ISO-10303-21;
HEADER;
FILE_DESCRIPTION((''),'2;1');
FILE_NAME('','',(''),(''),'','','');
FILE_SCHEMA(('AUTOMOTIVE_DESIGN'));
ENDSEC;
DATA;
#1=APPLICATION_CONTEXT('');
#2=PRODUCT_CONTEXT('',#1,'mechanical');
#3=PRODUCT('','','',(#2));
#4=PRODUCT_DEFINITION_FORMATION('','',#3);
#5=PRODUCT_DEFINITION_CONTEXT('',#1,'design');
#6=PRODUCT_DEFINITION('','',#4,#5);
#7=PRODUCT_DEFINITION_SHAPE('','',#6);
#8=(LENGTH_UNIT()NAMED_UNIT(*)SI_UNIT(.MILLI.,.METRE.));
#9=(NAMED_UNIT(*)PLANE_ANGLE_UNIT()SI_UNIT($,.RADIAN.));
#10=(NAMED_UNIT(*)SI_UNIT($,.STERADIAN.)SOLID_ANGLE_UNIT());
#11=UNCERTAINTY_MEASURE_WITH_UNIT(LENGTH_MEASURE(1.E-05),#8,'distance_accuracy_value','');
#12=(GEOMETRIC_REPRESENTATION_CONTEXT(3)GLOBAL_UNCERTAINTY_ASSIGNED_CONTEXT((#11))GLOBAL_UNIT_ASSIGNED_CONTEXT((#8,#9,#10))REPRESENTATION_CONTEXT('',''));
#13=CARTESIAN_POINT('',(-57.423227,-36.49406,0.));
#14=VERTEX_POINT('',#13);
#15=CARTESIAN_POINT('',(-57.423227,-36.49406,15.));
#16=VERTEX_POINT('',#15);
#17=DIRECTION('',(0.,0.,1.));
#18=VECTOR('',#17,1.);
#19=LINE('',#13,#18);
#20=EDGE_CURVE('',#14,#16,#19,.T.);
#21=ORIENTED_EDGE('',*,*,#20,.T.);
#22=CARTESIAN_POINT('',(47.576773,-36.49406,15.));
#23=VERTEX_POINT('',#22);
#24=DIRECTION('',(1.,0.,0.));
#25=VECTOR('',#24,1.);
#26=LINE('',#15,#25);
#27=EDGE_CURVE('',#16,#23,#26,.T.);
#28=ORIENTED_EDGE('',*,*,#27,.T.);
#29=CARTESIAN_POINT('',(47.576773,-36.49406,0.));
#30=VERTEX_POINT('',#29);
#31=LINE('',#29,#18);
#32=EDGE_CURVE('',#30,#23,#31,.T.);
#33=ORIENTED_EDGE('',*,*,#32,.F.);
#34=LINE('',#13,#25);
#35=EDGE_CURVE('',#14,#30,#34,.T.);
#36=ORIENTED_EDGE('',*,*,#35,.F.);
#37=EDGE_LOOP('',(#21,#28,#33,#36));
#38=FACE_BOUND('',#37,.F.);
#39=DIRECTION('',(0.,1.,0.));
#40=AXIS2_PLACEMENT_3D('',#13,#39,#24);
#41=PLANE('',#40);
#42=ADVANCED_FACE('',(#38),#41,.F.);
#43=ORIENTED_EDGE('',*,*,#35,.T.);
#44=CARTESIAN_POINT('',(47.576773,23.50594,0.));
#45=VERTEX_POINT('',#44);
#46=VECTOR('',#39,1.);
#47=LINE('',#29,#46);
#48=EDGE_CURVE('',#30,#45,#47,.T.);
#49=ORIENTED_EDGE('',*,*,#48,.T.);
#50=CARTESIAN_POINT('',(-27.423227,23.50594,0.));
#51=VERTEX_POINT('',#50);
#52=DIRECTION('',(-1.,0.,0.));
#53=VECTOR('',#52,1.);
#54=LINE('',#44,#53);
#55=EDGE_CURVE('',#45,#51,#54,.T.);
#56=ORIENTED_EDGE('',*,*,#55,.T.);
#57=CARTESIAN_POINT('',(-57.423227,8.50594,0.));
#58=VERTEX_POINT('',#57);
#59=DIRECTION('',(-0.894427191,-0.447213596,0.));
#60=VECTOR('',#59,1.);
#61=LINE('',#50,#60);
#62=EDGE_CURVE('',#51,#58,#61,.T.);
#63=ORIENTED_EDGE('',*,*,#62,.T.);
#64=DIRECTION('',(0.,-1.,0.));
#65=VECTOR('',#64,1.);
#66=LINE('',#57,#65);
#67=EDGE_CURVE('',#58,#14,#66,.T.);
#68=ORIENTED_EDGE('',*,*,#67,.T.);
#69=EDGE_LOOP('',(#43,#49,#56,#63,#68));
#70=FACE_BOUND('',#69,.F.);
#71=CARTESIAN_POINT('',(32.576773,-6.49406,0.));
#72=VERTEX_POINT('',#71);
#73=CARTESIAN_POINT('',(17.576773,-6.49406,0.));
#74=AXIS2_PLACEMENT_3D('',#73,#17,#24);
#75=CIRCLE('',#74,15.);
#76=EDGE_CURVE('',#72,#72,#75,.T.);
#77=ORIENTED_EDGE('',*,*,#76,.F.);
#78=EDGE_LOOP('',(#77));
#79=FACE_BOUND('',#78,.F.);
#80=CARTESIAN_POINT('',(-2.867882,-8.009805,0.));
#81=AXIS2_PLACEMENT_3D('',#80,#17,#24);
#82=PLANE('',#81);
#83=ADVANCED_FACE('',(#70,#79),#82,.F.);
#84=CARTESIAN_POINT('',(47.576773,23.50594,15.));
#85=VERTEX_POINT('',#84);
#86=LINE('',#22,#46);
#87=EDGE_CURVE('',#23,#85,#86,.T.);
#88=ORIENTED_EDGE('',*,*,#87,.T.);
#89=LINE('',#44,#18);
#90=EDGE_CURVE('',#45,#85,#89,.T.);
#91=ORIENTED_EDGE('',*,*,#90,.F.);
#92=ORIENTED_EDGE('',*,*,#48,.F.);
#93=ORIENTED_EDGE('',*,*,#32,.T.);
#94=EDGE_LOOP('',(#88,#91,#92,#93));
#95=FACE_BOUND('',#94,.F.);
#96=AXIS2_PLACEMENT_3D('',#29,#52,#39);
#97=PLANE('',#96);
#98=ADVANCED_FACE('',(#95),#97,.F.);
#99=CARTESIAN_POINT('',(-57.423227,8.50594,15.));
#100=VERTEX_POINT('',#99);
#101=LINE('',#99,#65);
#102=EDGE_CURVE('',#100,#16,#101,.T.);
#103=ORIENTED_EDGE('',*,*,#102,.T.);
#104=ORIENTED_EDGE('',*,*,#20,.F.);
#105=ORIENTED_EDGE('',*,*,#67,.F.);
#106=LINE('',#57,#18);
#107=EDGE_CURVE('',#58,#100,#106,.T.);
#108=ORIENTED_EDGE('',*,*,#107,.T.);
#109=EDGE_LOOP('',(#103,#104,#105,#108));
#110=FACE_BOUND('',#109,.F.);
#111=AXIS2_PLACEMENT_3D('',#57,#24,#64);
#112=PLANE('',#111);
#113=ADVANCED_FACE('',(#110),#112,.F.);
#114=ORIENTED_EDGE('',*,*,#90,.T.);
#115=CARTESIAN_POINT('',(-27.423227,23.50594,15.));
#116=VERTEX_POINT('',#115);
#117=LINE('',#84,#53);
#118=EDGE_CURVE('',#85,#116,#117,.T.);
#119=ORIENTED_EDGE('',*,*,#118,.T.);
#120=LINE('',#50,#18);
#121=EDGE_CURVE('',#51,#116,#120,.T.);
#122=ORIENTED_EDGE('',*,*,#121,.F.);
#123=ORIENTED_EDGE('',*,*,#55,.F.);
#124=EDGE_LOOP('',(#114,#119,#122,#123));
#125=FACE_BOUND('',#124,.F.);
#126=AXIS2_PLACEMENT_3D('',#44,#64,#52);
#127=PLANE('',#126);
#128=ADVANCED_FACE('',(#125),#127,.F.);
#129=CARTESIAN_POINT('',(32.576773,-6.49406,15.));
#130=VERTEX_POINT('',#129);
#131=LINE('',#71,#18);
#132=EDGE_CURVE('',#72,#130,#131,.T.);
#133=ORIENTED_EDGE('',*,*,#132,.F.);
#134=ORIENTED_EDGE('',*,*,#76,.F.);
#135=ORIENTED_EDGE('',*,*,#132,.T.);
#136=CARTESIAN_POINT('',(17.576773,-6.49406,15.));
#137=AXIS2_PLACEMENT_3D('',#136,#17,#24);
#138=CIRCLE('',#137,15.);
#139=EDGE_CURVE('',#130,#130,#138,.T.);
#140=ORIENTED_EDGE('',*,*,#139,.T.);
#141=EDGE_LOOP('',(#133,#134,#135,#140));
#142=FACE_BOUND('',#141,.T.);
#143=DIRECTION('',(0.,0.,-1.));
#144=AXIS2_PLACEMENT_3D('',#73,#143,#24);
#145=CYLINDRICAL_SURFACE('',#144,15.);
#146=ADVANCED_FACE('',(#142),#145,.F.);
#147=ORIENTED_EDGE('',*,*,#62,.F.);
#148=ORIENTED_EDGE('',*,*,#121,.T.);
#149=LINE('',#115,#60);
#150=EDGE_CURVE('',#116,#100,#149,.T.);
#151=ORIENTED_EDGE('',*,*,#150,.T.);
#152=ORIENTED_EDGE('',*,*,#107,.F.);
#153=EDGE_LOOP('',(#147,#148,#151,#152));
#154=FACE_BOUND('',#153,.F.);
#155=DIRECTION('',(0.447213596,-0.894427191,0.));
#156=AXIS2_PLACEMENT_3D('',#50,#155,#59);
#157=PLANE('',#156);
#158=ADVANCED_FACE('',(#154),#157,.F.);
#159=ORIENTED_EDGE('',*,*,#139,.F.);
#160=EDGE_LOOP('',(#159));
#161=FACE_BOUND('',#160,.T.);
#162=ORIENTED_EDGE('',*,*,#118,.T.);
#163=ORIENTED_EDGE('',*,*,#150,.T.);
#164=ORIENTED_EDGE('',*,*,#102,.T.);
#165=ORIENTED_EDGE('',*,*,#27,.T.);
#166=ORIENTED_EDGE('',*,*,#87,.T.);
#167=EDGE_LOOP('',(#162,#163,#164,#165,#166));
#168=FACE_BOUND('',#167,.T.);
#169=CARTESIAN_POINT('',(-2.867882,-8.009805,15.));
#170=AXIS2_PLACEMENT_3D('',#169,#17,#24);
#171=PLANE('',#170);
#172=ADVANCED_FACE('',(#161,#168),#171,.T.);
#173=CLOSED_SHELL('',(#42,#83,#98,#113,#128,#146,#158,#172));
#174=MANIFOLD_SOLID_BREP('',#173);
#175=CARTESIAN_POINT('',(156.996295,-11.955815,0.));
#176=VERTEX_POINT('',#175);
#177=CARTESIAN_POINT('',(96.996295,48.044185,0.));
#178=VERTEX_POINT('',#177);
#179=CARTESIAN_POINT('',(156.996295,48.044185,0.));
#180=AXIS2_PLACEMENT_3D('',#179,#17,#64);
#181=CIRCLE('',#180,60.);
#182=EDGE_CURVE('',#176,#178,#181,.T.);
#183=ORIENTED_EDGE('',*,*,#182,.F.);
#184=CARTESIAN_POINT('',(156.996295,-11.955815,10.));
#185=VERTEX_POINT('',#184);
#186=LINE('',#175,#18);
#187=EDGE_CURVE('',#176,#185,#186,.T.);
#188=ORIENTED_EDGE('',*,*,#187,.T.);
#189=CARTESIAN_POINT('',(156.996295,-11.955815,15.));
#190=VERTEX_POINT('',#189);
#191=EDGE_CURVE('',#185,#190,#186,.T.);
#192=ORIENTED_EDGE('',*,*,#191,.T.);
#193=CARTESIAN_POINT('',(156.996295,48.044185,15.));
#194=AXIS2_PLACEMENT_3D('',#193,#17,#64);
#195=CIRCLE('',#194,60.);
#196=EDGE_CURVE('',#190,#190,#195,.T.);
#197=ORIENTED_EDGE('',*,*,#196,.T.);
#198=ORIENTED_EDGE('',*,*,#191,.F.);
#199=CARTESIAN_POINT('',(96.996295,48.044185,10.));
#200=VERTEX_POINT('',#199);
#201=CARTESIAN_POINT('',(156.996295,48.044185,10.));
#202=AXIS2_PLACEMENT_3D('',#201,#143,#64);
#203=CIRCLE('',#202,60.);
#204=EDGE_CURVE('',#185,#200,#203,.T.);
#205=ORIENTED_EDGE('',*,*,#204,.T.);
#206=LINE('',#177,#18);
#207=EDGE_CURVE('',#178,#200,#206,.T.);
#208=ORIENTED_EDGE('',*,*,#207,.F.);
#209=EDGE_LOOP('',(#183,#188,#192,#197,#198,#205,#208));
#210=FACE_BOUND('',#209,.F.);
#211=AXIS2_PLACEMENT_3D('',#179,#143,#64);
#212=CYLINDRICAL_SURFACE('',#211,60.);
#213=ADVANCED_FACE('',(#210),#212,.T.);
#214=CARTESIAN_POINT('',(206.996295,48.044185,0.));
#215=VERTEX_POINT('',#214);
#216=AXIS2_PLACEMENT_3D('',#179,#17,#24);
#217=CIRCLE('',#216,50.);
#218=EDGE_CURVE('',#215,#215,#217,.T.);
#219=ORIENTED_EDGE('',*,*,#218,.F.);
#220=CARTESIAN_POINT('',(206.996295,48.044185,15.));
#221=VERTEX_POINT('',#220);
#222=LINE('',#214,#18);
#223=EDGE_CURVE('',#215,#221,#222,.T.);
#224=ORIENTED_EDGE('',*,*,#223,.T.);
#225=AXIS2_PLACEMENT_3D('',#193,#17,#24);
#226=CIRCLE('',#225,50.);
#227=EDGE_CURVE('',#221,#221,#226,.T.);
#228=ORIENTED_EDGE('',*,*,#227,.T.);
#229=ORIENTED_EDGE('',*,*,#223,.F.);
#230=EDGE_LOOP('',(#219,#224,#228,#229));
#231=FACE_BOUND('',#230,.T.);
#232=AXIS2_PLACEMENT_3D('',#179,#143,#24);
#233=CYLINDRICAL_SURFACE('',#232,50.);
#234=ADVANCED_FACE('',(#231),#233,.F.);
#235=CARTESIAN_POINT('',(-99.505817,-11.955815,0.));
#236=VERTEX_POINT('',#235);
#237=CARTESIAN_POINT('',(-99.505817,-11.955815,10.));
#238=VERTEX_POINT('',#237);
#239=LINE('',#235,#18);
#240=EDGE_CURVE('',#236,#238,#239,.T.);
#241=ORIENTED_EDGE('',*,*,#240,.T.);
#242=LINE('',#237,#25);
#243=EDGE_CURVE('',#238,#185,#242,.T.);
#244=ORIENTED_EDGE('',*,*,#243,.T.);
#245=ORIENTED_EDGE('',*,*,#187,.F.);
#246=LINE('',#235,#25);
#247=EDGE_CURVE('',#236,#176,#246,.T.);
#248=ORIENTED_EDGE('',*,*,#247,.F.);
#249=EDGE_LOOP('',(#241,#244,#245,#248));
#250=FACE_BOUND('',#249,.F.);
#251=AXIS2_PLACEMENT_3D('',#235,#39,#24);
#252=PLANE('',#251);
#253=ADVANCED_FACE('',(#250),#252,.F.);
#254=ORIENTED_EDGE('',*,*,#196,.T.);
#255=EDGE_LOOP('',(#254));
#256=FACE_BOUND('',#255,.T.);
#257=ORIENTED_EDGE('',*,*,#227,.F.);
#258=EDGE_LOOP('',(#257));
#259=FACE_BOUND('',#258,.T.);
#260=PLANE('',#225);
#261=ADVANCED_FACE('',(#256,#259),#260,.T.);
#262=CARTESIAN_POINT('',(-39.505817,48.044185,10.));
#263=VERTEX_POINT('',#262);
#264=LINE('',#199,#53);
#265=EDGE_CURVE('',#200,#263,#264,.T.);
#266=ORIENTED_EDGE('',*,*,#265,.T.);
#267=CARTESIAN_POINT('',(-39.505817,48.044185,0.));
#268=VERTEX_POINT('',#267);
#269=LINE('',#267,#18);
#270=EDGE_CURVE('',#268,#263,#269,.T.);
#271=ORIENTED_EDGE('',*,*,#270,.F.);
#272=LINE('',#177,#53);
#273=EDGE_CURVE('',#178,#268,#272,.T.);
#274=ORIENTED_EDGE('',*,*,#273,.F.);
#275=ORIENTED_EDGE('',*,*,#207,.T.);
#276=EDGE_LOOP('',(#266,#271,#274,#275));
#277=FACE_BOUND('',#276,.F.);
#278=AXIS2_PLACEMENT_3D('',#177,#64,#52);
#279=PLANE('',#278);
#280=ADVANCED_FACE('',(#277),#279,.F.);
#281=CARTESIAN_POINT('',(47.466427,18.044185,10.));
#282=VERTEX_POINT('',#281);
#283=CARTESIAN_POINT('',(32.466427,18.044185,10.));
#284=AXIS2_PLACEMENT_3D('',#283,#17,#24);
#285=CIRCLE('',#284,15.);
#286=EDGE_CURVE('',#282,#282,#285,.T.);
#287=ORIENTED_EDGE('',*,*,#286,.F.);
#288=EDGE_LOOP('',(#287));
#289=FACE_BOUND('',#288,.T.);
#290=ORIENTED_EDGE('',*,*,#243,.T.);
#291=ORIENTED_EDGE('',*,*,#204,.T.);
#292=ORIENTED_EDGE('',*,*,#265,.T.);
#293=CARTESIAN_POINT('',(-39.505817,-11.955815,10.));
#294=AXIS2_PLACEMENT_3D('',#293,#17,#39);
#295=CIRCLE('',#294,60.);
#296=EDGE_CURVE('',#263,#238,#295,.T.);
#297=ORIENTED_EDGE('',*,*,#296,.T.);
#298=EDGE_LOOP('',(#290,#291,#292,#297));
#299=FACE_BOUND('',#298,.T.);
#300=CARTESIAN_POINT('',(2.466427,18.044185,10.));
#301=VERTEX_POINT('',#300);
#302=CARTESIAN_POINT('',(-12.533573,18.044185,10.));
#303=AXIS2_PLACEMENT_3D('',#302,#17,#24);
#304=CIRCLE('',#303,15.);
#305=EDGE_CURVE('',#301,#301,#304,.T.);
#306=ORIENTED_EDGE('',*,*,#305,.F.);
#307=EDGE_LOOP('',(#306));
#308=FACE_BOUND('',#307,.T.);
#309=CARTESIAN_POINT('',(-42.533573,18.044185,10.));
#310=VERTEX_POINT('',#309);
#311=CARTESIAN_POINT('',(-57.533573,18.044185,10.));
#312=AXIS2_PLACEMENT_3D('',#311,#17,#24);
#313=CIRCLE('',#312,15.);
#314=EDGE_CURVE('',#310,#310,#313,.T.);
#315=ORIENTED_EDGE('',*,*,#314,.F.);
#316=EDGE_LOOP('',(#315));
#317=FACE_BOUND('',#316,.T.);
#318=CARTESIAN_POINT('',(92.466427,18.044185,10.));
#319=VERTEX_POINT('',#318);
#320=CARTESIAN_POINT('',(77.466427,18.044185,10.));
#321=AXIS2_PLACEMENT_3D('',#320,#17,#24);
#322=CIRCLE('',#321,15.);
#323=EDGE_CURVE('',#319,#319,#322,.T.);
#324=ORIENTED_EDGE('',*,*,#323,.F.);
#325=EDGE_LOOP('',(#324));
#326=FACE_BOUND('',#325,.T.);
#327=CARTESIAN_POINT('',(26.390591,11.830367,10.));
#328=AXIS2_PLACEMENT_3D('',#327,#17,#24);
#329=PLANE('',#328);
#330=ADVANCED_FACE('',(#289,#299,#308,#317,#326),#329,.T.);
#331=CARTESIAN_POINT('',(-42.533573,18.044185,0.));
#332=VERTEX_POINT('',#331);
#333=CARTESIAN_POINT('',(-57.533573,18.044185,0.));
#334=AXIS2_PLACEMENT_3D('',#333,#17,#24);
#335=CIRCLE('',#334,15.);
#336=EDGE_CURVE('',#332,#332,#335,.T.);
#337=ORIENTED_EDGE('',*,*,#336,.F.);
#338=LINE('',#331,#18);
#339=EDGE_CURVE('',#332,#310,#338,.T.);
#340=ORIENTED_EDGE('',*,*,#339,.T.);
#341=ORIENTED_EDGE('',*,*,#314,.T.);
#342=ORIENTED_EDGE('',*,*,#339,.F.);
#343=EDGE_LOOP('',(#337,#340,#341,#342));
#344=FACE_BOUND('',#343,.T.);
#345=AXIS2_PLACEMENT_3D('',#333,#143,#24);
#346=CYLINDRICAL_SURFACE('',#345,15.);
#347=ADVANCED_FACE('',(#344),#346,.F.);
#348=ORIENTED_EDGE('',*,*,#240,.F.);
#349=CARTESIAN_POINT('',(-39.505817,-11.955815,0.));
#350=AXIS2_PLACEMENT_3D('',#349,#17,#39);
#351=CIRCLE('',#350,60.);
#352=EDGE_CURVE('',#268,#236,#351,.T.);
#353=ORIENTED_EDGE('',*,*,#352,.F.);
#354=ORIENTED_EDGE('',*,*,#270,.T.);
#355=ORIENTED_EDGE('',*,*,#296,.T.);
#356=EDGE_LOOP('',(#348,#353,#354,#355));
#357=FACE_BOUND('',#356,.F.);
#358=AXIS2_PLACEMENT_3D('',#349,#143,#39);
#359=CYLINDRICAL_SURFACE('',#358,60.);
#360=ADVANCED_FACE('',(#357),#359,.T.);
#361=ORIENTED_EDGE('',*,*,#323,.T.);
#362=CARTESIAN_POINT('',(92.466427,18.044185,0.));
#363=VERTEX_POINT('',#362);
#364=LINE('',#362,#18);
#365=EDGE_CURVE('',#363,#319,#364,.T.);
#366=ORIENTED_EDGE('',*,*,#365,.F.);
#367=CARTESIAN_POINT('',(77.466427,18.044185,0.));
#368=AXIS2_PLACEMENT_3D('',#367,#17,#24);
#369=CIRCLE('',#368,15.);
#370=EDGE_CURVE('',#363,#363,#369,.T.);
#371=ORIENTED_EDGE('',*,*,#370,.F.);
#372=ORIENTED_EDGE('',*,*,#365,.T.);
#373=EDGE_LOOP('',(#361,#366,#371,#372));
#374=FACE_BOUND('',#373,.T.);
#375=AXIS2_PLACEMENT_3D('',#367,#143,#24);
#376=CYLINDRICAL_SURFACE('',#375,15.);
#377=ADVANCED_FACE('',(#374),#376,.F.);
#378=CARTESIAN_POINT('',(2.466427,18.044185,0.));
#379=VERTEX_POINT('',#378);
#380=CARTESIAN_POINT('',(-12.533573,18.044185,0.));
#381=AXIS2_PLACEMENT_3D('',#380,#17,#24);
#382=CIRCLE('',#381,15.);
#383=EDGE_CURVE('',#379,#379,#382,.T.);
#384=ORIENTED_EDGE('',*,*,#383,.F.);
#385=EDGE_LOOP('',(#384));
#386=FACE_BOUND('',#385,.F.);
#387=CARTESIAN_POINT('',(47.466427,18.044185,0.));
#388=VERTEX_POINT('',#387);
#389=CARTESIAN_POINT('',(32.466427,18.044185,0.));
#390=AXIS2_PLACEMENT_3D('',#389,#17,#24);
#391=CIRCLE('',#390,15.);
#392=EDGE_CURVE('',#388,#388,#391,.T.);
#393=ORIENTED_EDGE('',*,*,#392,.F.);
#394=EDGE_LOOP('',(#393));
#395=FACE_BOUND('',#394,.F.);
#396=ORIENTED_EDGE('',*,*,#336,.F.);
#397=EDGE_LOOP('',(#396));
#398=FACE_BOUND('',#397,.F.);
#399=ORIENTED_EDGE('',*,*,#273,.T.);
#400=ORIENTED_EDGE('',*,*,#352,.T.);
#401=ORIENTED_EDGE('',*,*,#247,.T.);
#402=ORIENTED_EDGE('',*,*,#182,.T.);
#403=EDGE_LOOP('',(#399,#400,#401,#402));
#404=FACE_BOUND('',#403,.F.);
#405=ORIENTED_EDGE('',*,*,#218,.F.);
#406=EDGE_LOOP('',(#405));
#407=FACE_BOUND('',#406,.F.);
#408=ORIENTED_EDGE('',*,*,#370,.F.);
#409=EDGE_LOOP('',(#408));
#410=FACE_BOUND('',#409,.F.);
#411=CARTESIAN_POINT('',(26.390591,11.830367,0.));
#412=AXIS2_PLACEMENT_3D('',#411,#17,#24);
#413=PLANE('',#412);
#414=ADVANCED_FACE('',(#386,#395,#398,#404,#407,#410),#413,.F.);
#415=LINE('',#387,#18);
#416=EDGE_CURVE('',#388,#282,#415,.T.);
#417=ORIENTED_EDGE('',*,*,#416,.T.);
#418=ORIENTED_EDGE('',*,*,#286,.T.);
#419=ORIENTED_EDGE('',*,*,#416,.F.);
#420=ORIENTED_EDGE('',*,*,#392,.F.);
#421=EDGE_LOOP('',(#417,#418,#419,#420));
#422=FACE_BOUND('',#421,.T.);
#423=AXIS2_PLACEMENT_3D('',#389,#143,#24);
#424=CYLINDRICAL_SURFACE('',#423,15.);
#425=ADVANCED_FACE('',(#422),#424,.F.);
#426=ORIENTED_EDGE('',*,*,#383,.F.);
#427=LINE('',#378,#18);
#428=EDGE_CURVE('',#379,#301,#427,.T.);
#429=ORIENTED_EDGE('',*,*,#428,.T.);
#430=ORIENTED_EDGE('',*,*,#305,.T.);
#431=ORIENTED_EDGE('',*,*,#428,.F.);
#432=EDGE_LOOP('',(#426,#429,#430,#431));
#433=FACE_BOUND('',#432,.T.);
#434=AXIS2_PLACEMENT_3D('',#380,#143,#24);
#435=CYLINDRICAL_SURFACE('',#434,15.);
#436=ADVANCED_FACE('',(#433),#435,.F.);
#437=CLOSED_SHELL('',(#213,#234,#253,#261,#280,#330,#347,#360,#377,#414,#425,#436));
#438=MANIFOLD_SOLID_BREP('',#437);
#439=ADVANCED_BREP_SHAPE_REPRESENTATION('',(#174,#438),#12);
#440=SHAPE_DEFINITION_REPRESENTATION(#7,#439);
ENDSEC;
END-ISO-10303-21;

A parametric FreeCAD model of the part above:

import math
import FreeCAD as App
import Part
import Sketcher
Q = App.Units.Quantity

doc = App.newDocument("Part")
body = doc.addObject("PartDesign::Body", "Body")

sketch1 = body.newObject("Sketcher::SketchObject", "Sketch")
sketch1.AttachmentSupport = (doc.getObject("XY_Plane"), [""])
sketch1.MapMode = "FlatFace"
sketch1.addGeometry(Part.Circle(App.Vector(157, 48, 0), App.Vector(0, 0, 1), 60), False)
sketch1.addGeometry(Part.Circle(App.Vector(157, 48, 0), App.Vector(0, 0, 1), 50), False)
sketch1.addConstraint(Sketcher.Constraint("Coincident", 1, 3, 0, 3))
sketch1.addConstraint(Sketcher.Constraint("Diameter", 0, Q("120 mm")))
sketch1.addConstraint(Sketcher.Constraint("Diameter", 1, Q("100 mm")))
sketch1.addConstraint(Sketcher.Constraint("DistanceX", -1, 1, 0, 3, Q("156.996295 mm")))
sketch1.addConstraint(Sketcher.Constraint("DistanceY", -1, 1, 0, 3, Q("48.044185 mm")))
pad1 = body.newObject("PartDesign::Pad", "Pad")
pad1.Profile = sketch1
pad1.Length = 15

sketch2 = body.newObject("Sketcher::SketchObject", "Sketch001")
sketch2.AttachmentSupport = (doc.getObject("XY_Plane"), [""])
sketch2.MapMode = "FlatFace"
sketch2.addGeometry(Part.ArcOfCircle(Part.Circle(App.Vector(157, 48, 0), App.Vector(0, 0, 1), 60), math.radians(180), math.radians(270)), False)
sketch2.addGeometry(Part.LineSegment(App.Vector(97, 48, 0), App.Vector(-40, 48, 0)), False)
sketch2.addGeometry(Part.ArcOfCircle(Part.Circle(App.Vector(-40, -12, 0), App.Vector(0, 0, 1), 60), math.radians(90), math.radians(180)), False)
sketch2.addGeometry(Part.LineSegment(App.Vector(-100, -12, 0), App.Vector(157, -12, 0)), False)
sketch2.addGeometry(Part.Circle(App.Vector(-58, 18, 0), App.Vector(0, 0, 1), 15), False)
sketch2.addGeometry(Part.Circle(App.Vector(-13, 18, 0), App.Vector(0, 0, 1), 15), False)
sketch2.addGeometry(Part.Circle(App.Vector(32, 18, 0), App.Vector(0, 0, 1), 15), False)
sketch2.addGeometry(Part.Circle(App.Vector(77, 18, 0), App.Vector(0, 0, 1), 15), False)
sketch2.addConstraint(Sketcher.Constraint("Coincident", 0, 1, 1, 1))
sketch2.addConstraint(Sketcher.Constraint("Tangent", 1, 2, 2, 1))
sketch2.addConstraint(Sketcher.Constraint("Coincident", 2, 2, 3, 1))
sketch2.addConstraint(Sketcher.Constraint("Tangent", 3, 2, 0, 2))
sketch2.addConstraint(Sketcher.Constraint("Horizontal", 1))
sketch2.addConstraint(Sketcher.Constraint("Horizontal", 3))
sketch2.addConstraint(Sketcher.Constraint("Equal", 0, 2))
sketch2.addConstraint(Sketcher.Constraint("Equal", 4, 5))
sketch2.addConstraint(Sketcher.Constraint("Equal", 5, 6))
sketch2.addConstraint(Sketcher.Constraint("Equal", 6, 7))
sketch2.addConstraint(Sketcher.Constraint("Horizontal", 4, 3, 5, 3))
sketch2.addConstraint(Sketcher.Constraint("Horizontal", 5, 3, 6, 3))
sketch2.addConstraint(Sketcher.Constraint("Horizontal", 6, 3, 7, 3))
sketch2.addConstraint(Sketcher.Constraint("Diameter", 4, Q("30 mm")))
sketch2.addConstraint(Sketcher.Constraint("Radius", 0, Q("60 mm")))
sketch2.addConstraint(Sketcher.Constraint("DistanceY", 2, 3, 0, 3, Q("60 mm")))
sketch2.addConstraint(Sketcher.Constraint("DistanceY", 2, 3, 4, 3, Q("30 mm")))
sketch2.addConstraint(Sketcher.Constraint("DistanceX", 4, 3, 5, 3, Q("45 mm")))
sketch2.addConstraint(Sketcher.Constraint("DistanceX", 5, 3, 6, 3, Q("45 mm")))
sketch2.addConstraint(Sketcher.Constraint("DistanceX", 6, 3, 7, 3, Q("45 mm")))
sketch2.addConstraint(Sketcher.Constraint("DistanceX", 1, 2, 1, 1, Q("136.502112 mm")))
sketch2.addConstraint(Sketcher.Constraint("DistanceX", 4, 3, 0, 3, Q("214.529869 mm")))
sketch2.addConstraint(Sketcher.Constraint("DistanceX", -1, 1, 0, 3, Q("156.996295 mm")))
sketch2.addConstraint(Sketcher.Constraint("DistanceY", -1, 1, 0, 3, Q("48.044185 mm")))
pad2 = body.newObject("PartDesign::Pad", "Pad001")
pad2.Profile = sketch2
pad2.Length = 10
body2 = doc.addObject("PartDesign::Body", "Body001")

sketch3 = body2.newObject("Sketcher::SketchObject", "Sketch002")
sketch3.AttachmentSupport = (doc.getObject("XY_Plane001"), [""])
sketch3.MapMode = "FlatFace"
sketch3.addGeometry(Part.LineSegment(App.Vector(48, 24, 0), App.Vector(-27, 24, 0)), False)
sketch3.addGeometry(Part.LineSegment(App.Vector(-27, 24, 0), App.Vector(-57, 9, 0)), False)
sketch3.addGeometry(Part.LineSegment(App.Vector(-57, 9, 0), App.Vector(-57, -36, 0)), False)
sketch3.addGeometry(Part.LineSegment(App.Vector(-57, -36, 0), App.Vector(48, -36, 0)), False)
sketch3.addGeometry(Part.LineSegment(App.Vector(48, -36, 0), App.Vector(48, 24, 0)), False)
sketch3.addGeometry(Part.Circle(App.Vector(18, -6, 0), App.Vector(0, 0, 1), 15), False)
sketch3.addConstraint(Sketcher.Constraint("Coincident", 0, 2, 1, 1))
sketch3.addConstraint(Sketcher.Constraint("Coincident", 1, 2, 2, 1))
sketch3.addConstraint(Sketcher.Constraint("Coincident", 2, 2, 3, 1))
sketch3.addConstraint(Sketcher.Constraint("Coincident", 3, 2, 4, 1))
sketch3.addConstraint(Sketcher.Constraint("Coincident", 4, 2, 0, 1))
sketch3.addConstraint(Sketcher.Constraint("Horizontal", 0))
sketch3.addConstraint(Sketcher.Constraint("Vertical", 2))
sketch3.addConstraint(Sketcher.Constraint("Horizontal", 3))
sketch3.addConstraint(Sketcher.Constraint("Vertical", 4))
sketch3.addConstraint(Sketcher.Constraint("Diameter", 5, Q("30 mm")))
sketch3.addConstraint(Sketcher.Constraint("DistanceX", 0, 2, 0, 1, Q("75 mm")))
sketch3.addConstraint(Sketcher.Constraint("DistanceX", 3, 1, 3, 2, Q("105 mm")))
sketch3.addConstraint(Sketcher.Constraint("DistanceY", 2, 2, 2, 1, Q("45 mm")))
sketch3.addConstraint(Sketcher.Constraint("DistanceY", 4, 1, 4, 2, Q("60 mm")))
sketch3.addConstraint(Sketcher.Constraint("DistanceX", 0, 2, 5, 3, Q("45 mm")))
sketch3.addConstraint(Sketcher.Constraint("DistanceY", 5, 3, 0, 2, Q("30 mm")))
sketch3.addConstraint(Sketcher.Constraint("DistanceY", 5, 3, -1, 1, Q("6.49406 mm")))
sketch3.addConstraint(Sketcher.Constraint("DistanceX", -1, 1, 5, 3, Q("17.576773 mm")))
pad3 = body2.newObject("PartDesign::Pad", "Pad002")
pad3.Profile = sketch3
pad3.Length = 15

doc.recompute()
